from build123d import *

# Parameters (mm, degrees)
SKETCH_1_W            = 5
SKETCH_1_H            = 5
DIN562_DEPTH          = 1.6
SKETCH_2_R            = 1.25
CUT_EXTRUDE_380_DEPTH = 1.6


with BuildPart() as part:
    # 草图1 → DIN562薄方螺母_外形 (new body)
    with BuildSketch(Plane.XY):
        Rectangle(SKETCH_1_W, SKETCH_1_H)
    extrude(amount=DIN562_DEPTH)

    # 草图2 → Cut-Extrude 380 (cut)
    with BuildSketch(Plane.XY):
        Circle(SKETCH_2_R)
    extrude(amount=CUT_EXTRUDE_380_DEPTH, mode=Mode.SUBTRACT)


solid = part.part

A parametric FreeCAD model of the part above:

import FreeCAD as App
import Part
import Sketcher
from FreeCAD import Vector
Q = App.Units.Quantity

doc = App.newDocument("Part")
body = doc.addObject("PartDesign::Body", "Body")

# Sketch on XY plane
sketch1 = doc.addObject("Sketcher::SketchObject", "Sketch")
body.addObject(sketch1)
sketch1.AttachmentSupport = (doc.XY_Plane, [""])
sketch1.MapMode = "FlatFace"
sketch1.addGeometry([
    Part.LineSegment(Vector(-2, 2, 0), Vector(-2, -2, 0)),
    Part.LineSegment(Vector(-2, -2, 0), Vector(2, -2, 0)),
    Part.LineSegment(Vector(2, -2, 0), Vector(2, 2, 0)),
    Part.LineSegment(Vector(2, 2, 0), Vector(-2, 2, 0)),
], False)
sketch1.addConstraint([
    Sketcher.Constraint("Coincident", 0, 2, 1, 1),
    Sketcher.Constraint("Coincident", 1, 2, 2, 1),
    Sketcher.Constraint("Coincident", 2, 2, 3, 1),
    Sketcher.Constraint("Coincident", 3, 2, 0, 1),
    Sketcher.Constraint("Vertical", 0),
    Sketcher.Constraint("Horizontal", 1),
    Sketcher.Constraint("Vertical", 2),
    Sketcher.Constraint("Horizontal", 3),
    Sketcher.Constraint("Symmetric", 0, 2, 2, 2, -1, 1),
    Sketcher.Constraint("Equal", 3, 0),
    Sketcher.Constraint("DistanceX", 1, 1, 1, 2, Q("5 mm")),
])
pad1 = doc.addObject("PartDesign::Pad", "Pad")
body.addObject(pad1)
pad1.Profile = sketch1
pad1.Length = 1.6

# Sketch on XY plane
sketch2 = doc.addObject("Sketcher::SketchObject", "Sketch001")
body.addObject(sketch2)
sketch2.AttachmentSupport = (doc.XY_Plane, [""])
sketch2.MapMode = "FlatFace"
sketch2.addGeometry(Part.Circle(Vector(0, 0, 0), Vector(0, 0, 1), 1.2), False)
sketch2.addConstraint([
    Sketcher.Constraint("Coincident", 0, 3, -1, 1),
    Sketcher.Constraint("Diameter", 0, Q("2.5 mm")),
])
pocket1 = doc.addObject("PartDesign::Pocket", "Pocket")
body.addObject(pocket1)
pocket1.Profile = sketch2
pocket1.Length = 1.6
pocket1.Reversed = True

doc.recompute()
